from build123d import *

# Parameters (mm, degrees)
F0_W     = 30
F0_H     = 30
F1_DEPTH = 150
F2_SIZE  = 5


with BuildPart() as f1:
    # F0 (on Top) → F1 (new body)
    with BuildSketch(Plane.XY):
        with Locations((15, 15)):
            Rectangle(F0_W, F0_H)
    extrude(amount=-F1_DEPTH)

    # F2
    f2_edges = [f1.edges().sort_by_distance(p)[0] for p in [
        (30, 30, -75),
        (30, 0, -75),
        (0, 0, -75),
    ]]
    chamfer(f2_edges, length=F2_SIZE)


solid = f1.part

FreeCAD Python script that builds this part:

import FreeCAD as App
import Part
import Sketcher

V = App.Vector
Q = App.Units.Quantity


def edges_at(feature, points):
    """Names of the edges that pass closest to the given points."""
    edges = feature.Shape.Edges
    near = lambda p: min(range(len(edges)), key=lambda i: edges[i].distToShape(Part.Vertex(*p))[0])
    return sorted({f"Edge{near(p) + 1}" for p in points})


def add_polygon(sketch, points):
    """Adds a closed chain of lines whose ends are joined by coincident constraints."""
    first, n = sketch.GeometryCount, len(points)
    for a, b in zip(points, points[1:] + points[:1]):
        sketch.addGeometry(Part.LineSegment(App.Vector(*a, 0), App.Vector(*b, 0)), False)
    for i in range(n):
        sketch.addConstraint(Sketcher.Constraint("Coincident", first + i, 2, first + (i + 1) % n, 1))

doc = App.newDocument("Part")
body = doc.addObject("PartDesign::Body", "Body")

sketch1 = body.newObject("Sketcher::SketchObject", "Sketch")
sketch1.AttachmentSupport = (doc.getObject("XY_Plane"), [""])
sketch1.MapMode = "FlatFace"
add_polygon(sketch1, [(0, 30), (0, 0), (30, 0), (30, 30)])
sketch1.addConstraint(Sketcher.Constraint("Vertical", 0))
sketch1.addConstraint(Sketcher.Constraint("Horizontal", 1))
sketch1.addConstraint(Sketcher.Constraint("Vertical", 2))
sketch1.addConstraint(Sketcher.Constraint("Horizontal", 3))
sketch1.addConstraint(Sketcher.Constraint("Coincident", 0, 2, -1, 1))
sketch1.addConstraint(Sketcher.Constraint("Equal", 3, 0))
sketch1.addConstraint(Sketcher.Constraint("DistanceX", 1, 1, 1, 2, Q("30 mm")))
pad1 = body.newObject("PartDesign::Pad", "Pad")
pad1.Profile = sketch1
pad1.Length = 150
pad1.Reversed = True
doc.recompute()

chamfer = body.newObject("PartDesign::Chamfer", "Chamfer")
chamfer.Base = (pad1, edges_at(pad1, [(30, 30, -75), (30, 0, -75), (0, 0, -75)]))
chamfer.Size = 5

doc.recompute()
